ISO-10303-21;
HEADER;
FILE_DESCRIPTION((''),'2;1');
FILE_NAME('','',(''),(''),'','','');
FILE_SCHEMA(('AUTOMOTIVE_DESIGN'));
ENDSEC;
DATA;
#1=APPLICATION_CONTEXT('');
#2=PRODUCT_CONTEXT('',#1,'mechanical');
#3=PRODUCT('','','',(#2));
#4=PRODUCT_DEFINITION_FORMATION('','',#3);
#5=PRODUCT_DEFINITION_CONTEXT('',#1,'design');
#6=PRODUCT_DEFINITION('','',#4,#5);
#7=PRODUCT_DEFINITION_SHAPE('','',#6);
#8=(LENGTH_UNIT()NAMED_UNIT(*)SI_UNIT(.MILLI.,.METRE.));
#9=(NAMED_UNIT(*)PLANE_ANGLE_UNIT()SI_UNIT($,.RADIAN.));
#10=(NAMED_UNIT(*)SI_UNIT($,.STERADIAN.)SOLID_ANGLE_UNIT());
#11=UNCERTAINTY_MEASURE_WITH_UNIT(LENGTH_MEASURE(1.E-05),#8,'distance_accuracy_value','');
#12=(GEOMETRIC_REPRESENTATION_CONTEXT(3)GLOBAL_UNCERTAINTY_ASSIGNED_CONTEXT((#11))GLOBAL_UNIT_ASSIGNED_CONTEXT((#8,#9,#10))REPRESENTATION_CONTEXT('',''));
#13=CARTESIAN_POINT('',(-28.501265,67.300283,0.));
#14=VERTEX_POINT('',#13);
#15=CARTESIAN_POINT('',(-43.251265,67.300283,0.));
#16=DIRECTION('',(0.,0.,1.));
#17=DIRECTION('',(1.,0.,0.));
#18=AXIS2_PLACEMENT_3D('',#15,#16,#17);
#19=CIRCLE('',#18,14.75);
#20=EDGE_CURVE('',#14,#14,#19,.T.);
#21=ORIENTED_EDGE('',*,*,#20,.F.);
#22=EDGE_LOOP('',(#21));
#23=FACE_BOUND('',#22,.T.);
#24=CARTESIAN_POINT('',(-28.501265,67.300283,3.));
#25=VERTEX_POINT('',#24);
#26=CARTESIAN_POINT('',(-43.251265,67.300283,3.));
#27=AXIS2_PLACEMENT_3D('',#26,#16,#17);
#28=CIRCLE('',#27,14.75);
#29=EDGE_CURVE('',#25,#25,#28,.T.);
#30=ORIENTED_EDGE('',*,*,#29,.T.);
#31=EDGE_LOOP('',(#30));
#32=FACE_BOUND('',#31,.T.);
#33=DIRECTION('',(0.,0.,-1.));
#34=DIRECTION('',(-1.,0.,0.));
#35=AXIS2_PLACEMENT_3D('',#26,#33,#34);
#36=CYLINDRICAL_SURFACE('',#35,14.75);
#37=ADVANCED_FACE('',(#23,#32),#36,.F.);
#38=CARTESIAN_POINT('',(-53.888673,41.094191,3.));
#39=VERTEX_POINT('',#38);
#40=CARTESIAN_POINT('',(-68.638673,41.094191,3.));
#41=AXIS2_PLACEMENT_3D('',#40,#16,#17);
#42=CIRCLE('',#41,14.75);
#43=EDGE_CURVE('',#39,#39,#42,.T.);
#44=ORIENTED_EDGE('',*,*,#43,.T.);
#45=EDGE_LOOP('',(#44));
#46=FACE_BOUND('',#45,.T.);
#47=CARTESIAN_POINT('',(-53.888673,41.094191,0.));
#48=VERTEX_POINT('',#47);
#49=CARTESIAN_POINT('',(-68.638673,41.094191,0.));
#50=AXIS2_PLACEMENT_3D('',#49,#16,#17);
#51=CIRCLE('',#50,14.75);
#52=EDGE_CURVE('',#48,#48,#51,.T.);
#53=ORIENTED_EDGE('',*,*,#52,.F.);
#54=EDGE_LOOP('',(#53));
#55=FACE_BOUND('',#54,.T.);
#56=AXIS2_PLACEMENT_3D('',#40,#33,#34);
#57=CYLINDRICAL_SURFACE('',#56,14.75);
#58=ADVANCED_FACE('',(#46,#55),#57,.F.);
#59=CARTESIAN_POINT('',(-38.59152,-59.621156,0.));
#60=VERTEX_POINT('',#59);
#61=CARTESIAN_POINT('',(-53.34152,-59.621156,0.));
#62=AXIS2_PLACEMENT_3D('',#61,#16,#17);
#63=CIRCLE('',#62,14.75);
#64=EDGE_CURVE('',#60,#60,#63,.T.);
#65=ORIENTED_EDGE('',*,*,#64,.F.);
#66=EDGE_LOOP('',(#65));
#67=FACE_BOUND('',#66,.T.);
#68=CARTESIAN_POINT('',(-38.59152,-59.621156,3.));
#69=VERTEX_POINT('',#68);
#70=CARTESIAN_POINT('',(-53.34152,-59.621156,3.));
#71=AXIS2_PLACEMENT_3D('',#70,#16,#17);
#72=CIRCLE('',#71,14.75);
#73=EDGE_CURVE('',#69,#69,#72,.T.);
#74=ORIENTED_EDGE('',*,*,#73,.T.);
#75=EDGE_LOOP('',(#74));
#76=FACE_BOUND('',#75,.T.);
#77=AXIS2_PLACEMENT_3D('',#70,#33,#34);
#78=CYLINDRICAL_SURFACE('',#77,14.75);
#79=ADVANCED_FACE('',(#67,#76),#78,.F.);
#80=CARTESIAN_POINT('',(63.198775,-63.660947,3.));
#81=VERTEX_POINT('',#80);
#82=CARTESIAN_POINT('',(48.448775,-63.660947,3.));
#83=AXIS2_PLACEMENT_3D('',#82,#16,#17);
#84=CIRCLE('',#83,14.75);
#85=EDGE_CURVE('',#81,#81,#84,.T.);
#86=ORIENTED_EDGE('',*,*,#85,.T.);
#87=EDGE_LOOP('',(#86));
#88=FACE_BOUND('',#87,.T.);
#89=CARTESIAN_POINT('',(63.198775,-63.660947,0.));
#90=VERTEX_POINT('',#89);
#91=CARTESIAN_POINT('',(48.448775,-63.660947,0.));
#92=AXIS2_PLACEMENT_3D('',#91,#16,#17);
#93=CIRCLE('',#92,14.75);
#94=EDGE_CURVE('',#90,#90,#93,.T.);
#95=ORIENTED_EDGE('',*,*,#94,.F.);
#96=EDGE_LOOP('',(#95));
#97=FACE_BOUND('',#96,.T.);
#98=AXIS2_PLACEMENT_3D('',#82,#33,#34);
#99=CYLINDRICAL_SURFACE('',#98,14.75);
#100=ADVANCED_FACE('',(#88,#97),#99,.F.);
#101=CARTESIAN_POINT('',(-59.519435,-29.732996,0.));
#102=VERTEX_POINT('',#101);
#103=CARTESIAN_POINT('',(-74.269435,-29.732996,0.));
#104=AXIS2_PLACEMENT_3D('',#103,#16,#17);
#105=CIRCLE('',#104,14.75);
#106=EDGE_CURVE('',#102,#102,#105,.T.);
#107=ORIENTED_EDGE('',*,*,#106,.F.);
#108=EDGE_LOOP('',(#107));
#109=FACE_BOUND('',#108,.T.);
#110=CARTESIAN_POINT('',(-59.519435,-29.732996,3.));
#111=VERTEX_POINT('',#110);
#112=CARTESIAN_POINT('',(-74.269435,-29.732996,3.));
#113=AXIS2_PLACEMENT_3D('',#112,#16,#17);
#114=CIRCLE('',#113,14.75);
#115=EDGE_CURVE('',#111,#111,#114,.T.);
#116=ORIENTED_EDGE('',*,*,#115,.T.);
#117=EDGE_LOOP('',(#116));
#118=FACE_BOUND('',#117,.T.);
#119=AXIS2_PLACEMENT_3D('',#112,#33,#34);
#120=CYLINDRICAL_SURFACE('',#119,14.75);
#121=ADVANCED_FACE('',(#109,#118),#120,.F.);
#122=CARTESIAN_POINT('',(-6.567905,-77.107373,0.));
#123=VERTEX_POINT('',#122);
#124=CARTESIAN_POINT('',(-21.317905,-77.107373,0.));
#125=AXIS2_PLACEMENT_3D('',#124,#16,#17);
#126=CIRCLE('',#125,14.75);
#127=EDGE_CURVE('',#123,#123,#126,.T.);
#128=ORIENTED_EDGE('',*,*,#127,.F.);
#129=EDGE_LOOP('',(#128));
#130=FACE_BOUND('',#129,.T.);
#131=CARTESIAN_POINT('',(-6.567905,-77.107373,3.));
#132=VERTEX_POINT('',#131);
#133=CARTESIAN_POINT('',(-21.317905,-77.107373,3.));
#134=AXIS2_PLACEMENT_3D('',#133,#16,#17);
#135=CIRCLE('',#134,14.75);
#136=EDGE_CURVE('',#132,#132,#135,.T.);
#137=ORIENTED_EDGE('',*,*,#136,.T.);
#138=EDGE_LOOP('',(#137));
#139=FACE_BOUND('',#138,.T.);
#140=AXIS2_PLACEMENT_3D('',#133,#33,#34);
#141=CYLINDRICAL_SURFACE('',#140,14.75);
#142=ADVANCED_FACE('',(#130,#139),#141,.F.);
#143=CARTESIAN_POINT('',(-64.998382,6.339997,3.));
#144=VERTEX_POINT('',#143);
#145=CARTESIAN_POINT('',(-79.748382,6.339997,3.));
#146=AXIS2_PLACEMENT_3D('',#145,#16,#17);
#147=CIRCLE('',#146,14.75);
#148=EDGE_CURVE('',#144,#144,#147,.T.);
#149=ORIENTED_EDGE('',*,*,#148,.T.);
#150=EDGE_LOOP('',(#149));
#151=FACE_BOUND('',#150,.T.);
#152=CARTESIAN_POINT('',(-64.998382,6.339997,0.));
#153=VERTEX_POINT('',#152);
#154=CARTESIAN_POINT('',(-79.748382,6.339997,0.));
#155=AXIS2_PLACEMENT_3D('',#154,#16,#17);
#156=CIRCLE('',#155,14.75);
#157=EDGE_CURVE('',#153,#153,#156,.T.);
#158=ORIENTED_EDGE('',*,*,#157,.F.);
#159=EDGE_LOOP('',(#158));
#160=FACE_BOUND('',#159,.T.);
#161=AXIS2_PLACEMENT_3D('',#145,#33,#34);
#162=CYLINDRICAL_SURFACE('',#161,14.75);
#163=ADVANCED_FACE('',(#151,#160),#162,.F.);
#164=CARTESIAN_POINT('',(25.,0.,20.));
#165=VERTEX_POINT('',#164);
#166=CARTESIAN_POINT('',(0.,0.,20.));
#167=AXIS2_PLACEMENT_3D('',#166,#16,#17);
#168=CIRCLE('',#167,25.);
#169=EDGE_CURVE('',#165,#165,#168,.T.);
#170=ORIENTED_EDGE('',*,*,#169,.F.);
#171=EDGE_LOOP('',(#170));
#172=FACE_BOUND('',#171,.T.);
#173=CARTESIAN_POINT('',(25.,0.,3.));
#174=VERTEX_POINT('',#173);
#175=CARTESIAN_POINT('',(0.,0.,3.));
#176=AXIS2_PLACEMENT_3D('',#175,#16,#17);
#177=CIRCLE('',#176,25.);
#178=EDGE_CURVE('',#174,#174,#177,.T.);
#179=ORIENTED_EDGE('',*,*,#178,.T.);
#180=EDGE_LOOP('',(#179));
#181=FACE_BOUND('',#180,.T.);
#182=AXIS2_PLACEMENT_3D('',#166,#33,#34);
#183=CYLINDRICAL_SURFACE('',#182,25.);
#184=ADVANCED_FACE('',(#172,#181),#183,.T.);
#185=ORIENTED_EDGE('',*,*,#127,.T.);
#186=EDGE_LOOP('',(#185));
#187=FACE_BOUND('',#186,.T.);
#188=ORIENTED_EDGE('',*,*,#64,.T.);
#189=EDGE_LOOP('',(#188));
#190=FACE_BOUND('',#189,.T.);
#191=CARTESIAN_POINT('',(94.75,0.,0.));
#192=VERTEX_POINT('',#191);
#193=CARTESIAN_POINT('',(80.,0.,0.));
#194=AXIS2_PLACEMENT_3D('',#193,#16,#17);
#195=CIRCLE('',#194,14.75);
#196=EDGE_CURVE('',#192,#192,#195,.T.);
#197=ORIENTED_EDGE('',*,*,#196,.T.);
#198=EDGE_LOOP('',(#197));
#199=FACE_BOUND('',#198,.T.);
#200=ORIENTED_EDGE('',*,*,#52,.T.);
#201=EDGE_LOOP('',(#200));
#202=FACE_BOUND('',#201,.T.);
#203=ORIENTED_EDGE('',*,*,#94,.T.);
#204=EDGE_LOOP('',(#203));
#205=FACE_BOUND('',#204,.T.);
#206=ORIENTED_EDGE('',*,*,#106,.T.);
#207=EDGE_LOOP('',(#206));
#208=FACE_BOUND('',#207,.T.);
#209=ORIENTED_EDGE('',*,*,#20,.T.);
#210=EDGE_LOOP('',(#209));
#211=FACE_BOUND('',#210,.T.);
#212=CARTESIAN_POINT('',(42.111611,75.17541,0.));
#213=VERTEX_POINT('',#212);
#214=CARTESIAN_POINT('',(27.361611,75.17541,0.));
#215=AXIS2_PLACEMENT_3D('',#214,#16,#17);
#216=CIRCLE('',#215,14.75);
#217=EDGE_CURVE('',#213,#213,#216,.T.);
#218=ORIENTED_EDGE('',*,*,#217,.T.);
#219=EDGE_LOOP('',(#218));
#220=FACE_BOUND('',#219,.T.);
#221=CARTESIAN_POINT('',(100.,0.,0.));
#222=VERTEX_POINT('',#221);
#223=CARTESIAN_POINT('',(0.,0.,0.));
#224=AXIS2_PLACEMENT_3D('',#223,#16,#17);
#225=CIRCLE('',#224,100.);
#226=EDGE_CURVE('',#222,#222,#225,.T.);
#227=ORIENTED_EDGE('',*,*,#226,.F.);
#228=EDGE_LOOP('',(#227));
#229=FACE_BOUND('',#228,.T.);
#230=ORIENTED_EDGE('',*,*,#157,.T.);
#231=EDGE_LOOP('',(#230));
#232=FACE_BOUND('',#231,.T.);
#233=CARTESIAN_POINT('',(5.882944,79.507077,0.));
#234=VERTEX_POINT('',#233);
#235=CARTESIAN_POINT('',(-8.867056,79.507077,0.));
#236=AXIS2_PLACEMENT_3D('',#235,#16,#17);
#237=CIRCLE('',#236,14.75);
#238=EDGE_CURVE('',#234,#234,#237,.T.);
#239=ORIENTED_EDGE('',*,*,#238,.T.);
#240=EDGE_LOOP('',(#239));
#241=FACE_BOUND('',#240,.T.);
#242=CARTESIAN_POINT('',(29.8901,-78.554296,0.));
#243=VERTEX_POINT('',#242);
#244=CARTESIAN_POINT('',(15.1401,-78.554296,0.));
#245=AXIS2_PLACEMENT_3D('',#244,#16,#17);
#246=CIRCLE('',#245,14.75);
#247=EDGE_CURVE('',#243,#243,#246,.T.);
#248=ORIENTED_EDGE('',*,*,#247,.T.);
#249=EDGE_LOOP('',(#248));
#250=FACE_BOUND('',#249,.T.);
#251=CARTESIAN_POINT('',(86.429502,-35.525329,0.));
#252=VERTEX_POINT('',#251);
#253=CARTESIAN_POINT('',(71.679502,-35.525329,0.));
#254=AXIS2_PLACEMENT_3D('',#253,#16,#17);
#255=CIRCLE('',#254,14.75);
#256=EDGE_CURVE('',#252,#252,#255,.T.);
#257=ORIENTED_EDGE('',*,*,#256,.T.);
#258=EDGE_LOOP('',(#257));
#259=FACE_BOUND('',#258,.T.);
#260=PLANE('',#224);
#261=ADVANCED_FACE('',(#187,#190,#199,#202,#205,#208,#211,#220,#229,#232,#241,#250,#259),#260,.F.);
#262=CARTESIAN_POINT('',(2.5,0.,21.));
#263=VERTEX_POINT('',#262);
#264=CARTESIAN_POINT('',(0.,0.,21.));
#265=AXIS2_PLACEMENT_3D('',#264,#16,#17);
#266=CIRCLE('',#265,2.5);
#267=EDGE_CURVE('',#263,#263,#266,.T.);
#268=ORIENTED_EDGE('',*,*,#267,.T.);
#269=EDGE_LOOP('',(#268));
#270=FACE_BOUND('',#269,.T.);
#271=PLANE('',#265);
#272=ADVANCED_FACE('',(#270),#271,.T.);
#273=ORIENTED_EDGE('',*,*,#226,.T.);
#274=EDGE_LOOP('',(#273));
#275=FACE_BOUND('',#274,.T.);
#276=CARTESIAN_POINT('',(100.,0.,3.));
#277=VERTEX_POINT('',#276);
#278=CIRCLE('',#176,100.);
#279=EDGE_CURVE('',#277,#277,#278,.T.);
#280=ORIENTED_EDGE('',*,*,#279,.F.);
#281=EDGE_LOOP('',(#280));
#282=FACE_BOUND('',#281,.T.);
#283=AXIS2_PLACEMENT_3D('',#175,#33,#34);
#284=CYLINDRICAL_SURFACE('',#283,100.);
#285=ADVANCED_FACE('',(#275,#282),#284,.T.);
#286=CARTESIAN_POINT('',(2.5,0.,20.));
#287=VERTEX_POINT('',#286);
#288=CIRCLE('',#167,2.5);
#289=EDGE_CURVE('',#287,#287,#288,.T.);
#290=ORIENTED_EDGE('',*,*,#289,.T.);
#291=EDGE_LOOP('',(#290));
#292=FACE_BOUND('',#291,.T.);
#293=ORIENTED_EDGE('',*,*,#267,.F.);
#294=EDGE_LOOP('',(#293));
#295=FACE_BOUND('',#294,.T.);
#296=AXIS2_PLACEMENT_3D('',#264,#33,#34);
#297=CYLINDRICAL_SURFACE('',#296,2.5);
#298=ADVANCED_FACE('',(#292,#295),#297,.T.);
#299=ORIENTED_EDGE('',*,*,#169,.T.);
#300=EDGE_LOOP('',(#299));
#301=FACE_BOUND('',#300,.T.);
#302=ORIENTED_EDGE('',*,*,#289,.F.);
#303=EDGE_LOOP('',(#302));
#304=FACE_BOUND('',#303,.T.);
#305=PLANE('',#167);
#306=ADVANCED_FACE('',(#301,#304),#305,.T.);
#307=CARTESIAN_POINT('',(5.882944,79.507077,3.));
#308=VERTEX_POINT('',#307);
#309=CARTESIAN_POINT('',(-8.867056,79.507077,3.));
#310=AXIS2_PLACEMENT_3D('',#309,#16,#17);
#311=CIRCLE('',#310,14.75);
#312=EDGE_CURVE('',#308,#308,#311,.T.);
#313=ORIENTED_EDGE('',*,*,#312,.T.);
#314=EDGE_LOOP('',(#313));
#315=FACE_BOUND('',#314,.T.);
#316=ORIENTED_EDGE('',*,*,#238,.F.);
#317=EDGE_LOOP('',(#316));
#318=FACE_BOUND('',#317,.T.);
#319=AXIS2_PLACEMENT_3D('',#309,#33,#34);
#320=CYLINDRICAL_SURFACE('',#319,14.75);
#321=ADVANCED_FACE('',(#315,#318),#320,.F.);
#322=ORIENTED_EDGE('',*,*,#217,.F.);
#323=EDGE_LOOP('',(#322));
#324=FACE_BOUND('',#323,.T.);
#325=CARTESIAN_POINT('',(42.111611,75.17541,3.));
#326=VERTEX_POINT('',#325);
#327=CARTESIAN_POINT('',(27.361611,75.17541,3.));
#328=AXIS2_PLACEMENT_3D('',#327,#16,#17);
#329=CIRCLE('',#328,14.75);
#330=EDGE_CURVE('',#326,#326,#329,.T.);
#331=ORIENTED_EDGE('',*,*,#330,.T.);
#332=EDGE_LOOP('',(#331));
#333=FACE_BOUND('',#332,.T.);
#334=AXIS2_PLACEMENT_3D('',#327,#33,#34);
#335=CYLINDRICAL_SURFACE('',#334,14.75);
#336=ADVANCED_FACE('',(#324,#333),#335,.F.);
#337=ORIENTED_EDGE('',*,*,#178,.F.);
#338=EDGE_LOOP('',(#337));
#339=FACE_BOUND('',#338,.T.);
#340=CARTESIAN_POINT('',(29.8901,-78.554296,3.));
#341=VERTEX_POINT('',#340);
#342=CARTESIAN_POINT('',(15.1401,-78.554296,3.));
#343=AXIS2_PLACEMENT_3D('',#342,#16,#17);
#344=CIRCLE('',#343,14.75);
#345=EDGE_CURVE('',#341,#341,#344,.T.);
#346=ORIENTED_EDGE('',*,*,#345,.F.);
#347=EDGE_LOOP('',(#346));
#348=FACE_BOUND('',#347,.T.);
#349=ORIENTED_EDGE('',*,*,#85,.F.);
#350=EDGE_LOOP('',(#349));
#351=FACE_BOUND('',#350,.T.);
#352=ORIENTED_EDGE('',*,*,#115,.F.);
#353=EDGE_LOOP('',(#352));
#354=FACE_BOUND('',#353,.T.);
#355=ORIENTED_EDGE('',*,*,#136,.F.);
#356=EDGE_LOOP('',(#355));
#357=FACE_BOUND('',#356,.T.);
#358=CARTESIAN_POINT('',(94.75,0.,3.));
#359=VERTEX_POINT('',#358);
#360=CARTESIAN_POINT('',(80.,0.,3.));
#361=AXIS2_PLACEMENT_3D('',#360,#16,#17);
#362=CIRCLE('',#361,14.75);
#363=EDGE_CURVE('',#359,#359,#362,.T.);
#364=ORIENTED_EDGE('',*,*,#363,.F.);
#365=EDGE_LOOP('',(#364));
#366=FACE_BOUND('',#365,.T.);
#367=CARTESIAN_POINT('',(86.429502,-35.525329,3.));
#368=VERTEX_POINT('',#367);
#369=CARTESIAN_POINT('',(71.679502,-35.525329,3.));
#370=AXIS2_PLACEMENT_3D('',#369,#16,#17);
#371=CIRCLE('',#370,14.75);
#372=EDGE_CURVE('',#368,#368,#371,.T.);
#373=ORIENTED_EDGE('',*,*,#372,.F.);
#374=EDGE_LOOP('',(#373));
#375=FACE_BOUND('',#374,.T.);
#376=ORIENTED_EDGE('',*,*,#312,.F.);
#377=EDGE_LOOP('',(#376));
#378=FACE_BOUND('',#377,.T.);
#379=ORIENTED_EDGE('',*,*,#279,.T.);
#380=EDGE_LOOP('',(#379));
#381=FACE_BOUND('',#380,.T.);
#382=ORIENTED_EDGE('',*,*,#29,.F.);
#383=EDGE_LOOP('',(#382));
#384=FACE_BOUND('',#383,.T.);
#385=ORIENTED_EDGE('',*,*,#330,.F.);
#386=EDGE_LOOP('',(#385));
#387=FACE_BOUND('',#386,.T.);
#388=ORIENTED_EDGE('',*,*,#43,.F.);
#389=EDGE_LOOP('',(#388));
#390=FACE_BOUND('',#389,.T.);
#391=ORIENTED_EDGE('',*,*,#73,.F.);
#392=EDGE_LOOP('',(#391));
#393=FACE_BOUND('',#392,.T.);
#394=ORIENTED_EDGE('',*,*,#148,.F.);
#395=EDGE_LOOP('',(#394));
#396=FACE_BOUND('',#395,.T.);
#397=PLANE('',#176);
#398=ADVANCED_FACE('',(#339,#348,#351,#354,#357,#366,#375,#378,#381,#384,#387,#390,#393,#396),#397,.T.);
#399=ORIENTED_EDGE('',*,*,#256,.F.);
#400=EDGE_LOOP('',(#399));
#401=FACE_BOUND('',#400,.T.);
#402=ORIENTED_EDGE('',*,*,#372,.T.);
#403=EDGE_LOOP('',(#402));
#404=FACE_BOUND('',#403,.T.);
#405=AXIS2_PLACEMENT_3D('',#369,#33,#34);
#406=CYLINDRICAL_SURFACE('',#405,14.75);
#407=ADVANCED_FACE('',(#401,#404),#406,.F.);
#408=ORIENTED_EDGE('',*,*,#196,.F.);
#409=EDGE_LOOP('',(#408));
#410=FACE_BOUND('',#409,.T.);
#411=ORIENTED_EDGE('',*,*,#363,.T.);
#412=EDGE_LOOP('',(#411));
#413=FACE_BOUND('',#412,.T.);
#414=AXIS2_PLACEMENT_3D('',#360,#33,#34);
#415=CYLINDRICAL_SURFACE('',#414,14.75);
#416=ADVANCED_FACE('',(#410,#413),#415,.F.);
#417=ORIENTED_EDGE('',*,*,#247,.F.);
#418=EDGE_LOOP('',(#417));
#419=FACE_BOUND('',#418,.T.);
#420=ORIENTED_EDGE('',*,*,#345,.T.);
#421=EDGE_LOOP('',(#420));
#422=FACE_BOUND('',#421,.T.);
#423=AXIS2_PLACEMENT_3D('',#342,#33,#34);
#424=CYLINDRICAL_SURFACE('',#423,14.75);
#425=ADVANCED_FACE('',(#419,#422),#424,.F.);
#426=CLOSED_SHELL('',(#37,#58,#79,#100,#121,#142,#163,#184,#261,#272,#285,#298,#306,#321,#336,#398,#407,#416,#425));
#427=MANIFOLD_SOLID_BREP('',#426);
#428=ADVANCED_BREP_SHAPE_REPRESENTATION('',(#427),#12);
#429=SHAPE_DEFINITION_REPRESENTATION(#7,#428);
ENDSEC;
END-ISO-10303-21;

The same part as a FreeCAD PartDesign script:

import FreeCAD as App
import Part
import Sketcher

V = App.Vector
Q = App.Units.Quantity

doc = App.newDocument("Part")
body = doc.addObject("PartDesign::Body", "Body")

sketch1 = body.newObject("Sketcher::SketchObject", "Sketch")
sketch1.AttachmentSupport = (doc.getObject("XY_Plane"), [""])
sketch1.MapMode = "FlatFace"
sketch1.addGeometry(Part.Circle(V(0, 0, 0), V(0, 0, 1), 100), False)
sketch1.addGeometry(Part.Circle(V(-53, -60, 0), V(0, 0, 1), 15), False)
sketch1.addGeometry(Part.Circle(V(-21, -77, 0), V(0, 0, 1), 15), False)
sketch1.addGeometry(Part.Circle(V(-74, -30, 0), V(0, 0, 1), 15), False)
sketch1.addGeometry(Part.Circle(V(0, 0, 0), V(0, 0, 1), 25), False)
sketch1.addGeometry(Part.Circle(V(15, -79, 0), V(0, 0, 1), 15), False)
sketch1.addGeometry(Part.Circle(V(48, -64, 0), V(0, 0, 1), 15), False)
sketch1.addGeometry(Part.Circle(V(72, -36, 0), V(0, 0, 1), 15), False)
sketch1.addGeometry(Part.Circle(V(80, 0, 0), V(0, 0, 1), 15), False)
sketch1.addGeometry(Part.Circle(V(-80, 6, 0), V(0, 0, 1), 15), False)
sketch1.addGeometry(Part.Circle(V(-69, 41, 0), V(0, 0, 1), 15), False)
sketch1.addGeometry(Part.Circle(V(-43, 67, 0), V(0, 0, 1), 15), False)
sketch1.addGeometry(Part.Circle(V(-9, 80, 0), V(0, 0, 1), 15), False)
sketch1.addGeometry(Part.Circle(V(27, 75, 0), V(0, 0, 1), 15), False)
sketch1.addConstraint(Sketcher.Constraint("Coincident", 0, 3, -1, 1))
sketch1.addConstraint(Sketcher.Constraint("Coincident", 4, 3, -1, 1))
sketch1.addConstraint(Sketcher.Constraint("Equal", 1, 2))
sketch1.addConstraint(Sketcher.Constraint("Equal", 2, 3))
sketch1.addConstraint(Sketcher.Constraint("Equal", 3, 5))
sketch1.addConstraint(Sketcher.Constraint("Equal", 5, 6))
sketch1.addConstraint(Sketcher.Constraint("Equal", 6, 7))
sketch1.addConstraint(Sketcher.Constraint("Equal", 7, 8))
sketch1.addConstraint(Sketcher.Constraint("Equal", 8, 9))
sketch1.addConstraint(Sketcher.Constraint("Equal", 9, 10))
sketch1.addConstraint(Sketcher.Constraint("Equal", 10, 11))
sketch1.addConstraint(Sketcher.Constraint("Equal", 11, 12))
sketch1.addConstraint(Sketcher.Constraint("Equal", 12, 13))
sketch1.addConstraint(Sketcher.Constraint("PointOnObject", 8, 3, -1))
sketch1.addConstraint(Sketcher.Constraint("Diameter", 0, Q("200 mm")))
sketch1.addConstraint(Sketcher.Constraint("Diameter", 4, Q("50 mm")))
sketch1.addConstraint(Sketcher.Constraint("Diameter", 1, Q("29.5 mm")))
sketch1.addConstraint(Sketcher.Constraint("DistanceX", -1, 1, 8, 3, Q("80 mm")))
sketch1.addConstraint(Sketcher.Constraint("DistanceX", -1, 1, 5, 3, Q("15.1401 mm")))
sketch1.addConstraint(Sketcher.Constraint("DistanceX", -1, 1, 7, 3, Q("71.679502 mm")))
sketch1.addConstraint(Sketcher.Constraint("DistanceY", 5, 3, 3, 3, Q("48.821299 mm")))
sketch1.addConstraint(Sketcher.Constraint("DistanceX", 1, 3, -1, 1, Q("53.34152 mm")))
sketch1.addConstraint(Sketcher.Constraint("DistanceY", 7, 3, -1, 1, Q("35.525329 mm")))
sketch1.addConstraint(Sketcher.Constraint("DistanceY", -1, 1, 10, 3, Q("41.094191 mm")))
sketch1.addConstraint(Sketcher.Constraint("DistanceX", -1, 1, 13, 3, Q("27.361611 mm")))
sketch1.addConstraint(Sketcher.Constraint("DistanceY", -1, 1, 13, 3, Q("75.17541 mm")))
sketch1.addConstraint(Sketcher.Constraint("DistanceY", 1, 3, 3, 3, Q("29.88816 mm")))
sketch1.addConstraint(Sketcher.Constraint("DistanceX", 3, 3, 2, 3, Q("52.95153 mm")))
sketch1.addConstraint(Sketcher.Constraint("DistanceY", 5, 3, 6, 3, Q("14.893349 mm")))
sketch1.addConstraint(Sketcher.Constraint("DistanceX", 2, 3, 6, 3, Q("69.76668 mm")))
sketch1.addConstraint(Sketcher.Constraint("DistanceY", 6, 3, 7, 3, Q("28.135618 mm")))
sketch1.addConstraint(Sketcher.Constraint("DistanceY", 2, 3, 9, 3, Q("83.447369 mm")))
sketch1.addConstraint(Sketcher.Constraint("DistanceX", 9, 3, 10, 3, Q("11.109709 mm")))
sketch1.addConstraint(Sketcher.Constraint("DistanceX", 3, 3, 10, 3, Q("5.630762 mm")))
sketch1.addConstraint(Sketcher.Constraint("DistanceY", 10, 3, 11, 3, Q("26.206091 mm")))
sketch1.addConstraint(Sketcher.Constraint("DistanceX", 3, 3, 11, 3, Q("31.018169 mm")))
sketch1.addConstraint(Sketcher.Constraint("DistanceX", 11, 3, 12, 3, Q("34.384209 mm")))
sketch1.addConstraint(Sketcher.Constraint("DistanceY", 9, 3, 12, 3, Q("73.167081 mm")))
sketch1.addConstraint(Sketcher.Constraint("DistanceX", 2, 3, -1, 1, Q("21.317905 mm")))
sketch1.addConstraint(Sketcher.Constraint("DistanceY", 2, 3, -1, 1, Q("77.107373 mm")))
pad1 = body.newObject("PartDesign::Pad", "Pad")
pad1.Profile = sketch1
pad1.Length = 3

sketch2 = body.newObject("Sketcher::SketchObject", "Sketch001")
sketch2.AttachmentSupport = (doc.getObject("XY_Plane"), [""])
sketch2.MapMode = "FlatFace"
sketch2.addGeometry(Part.Circle(V(0, 0, 0), V(0, 0, 1), 25), False)
sketch2.addConstraint(Sketcher.Constraint("Coincident", 0, 3, -1, 1))
sketch2.addConstraint(Sketcher.Constraint("Diameter", 0, Q("50 mm")))
pad2 = body.newObject("PartDesign::Pad", "Pad001")
pad2.Profile = sketch2
pad2.Length = 20

sketch3 = body.newObject("Sketcher::SketchObject", "Sketch002")
sketch3.AttachmentSupport = (doc.getObject("XY_Plane"), [""])
sketch3.MapMode = "FlatFace"
sketch3.AttachmentOffset = App.Placement(V(0, 0, 20), App.Rotation())
sketch3.addGeometry(Part.Circle(V(0, 0, 0), V(0, 0, 1), 2.5), False)
sketch3.addConstraint(Sketcher.Constraint("Coincident", 0, 3, -1, 1))
sketch3.addConstraint(Sketcher.Constraint("Diameter", 0, Q("5 mm")))
pad3 = body.newObject("PartDesign::Pad", "Pad002")
pad3.Profile = sketch3
pad3.Length = 1

doc.recompute()
